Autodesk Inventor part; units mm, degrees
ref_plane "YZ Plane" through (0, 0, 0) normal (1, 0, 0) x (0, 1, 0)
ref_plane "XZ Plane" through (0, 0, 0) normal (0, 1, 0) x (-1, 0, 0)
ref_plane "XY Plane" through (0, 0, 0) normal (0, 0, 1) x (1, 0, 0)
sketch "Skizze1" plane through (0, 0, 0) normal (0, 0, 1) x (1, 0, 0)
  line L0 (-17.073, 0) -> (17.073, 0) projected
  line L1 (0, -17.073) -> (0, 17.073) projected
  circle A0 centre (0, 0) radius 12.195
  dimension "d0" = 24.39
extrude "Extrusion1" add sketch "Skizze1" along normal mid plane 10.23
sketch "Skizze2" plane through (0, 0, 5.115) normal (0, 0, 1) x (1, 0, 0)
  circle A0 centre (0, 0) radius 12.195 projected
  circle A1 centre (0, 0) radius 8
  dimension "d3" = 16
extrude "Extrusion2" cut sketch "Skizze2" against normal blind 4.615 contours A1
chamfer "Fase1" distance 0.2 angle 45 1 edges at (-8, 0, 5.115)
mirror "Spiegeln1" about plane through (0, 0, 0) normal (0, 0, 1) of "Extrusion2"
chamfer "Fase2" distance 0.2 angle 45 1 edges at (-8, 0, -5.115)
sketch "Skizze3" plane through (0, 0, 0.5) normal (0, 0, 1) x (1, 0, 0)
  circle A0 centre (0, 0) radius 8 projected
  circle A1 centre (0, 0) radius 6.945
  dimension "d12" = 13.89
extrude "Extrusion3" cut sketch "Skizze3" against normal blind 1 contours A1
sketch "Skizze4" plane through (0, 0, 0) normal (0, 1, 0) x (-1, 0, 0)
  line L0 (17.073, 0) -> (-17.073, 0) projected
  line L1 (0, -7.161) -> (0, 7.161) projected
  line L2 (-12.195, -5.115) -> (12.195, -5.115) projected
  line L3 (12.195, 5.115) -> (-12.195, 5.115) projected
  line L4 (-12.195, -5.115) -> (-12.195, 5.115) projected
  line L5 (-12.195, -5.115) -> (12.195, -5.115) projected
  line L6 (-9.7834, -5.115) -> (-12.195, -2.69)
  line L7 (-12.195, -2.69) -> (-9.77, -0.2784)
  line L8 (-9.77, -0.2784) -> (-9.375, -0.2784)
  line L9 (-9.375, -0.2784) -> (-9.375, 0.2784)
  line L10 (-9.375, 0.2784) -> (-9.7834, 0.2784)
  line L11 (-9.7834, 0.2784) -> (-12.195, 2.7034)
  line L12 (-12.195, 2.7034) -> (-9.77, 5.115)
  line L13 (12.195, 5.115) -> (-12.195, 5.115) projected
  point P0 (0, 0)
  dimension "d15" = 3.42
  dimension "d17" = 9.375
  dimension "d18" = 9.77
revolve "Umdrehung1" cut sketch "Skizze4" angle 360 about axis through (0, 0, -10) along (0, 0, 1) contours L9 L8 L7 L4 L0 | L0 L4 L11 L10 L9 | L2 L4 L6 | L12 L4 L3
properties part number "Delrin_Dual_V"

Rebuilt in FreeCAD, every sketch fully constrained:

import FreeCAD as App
import Part
import Sketcher
from FreeCAD import Vector
Q = App.Units.Quantity


def edges_at(feature, points):
    """Names of the edges that pass closest to the given points."""
    edges = feature.Shape.Edges
    near = lambda p: min(range(len(edges)), key=lambda i: edges[i].distToShape(Part.Vertex(*p))[0])
    return sorted({f"Edge{near(p) + 1}" for p in points})


def add_polygon(sketch, points):
    """Adds a closed chain of lines whose ends are joined by coincident constraints."""
    first, n = sketch.GeometryCount, len(points)
    for a, b in zip(points, points[1:] + points[:1]):
        sketch.addGeometry(Part.LineSegment(App.Vector(*a, 0), App.Vector(*b, 0)), False)
    for i in range(n):
        sketch.addConstraint(Sketcher.Constraint("Coincident", first + i, 2, first + (i + 1) % n, 1))

doc = App.newDocument("Part")
body = doc.addObject("PartDesign::Body", "Body")

# Sketch on XY plane
sketch1 = body.newObject("Sketcher::SketchObject", "Sketch")
sketch1.AttachmentSupport = (doc.getObject("XY_Plane"), [""])
sketch1.MapMode = "FlatFace"
sketch1.addGeometry(Part.Circle(Vector(0, 0, 0), Vector(0, 0, 1), 12), False)
sketch1.addConstraint([
    Sketcher.Constraint("Coincident", 0, 3, -1, 1),
    Sketcher.Constraint("Diameter", 0, Q("24.39 mm")),
])
pad1 = body.newObject("PartDesign::Pad", "Pad")
pad1.Profile = sketch1
pad1.Length = 10.23
pad1.Midplane = True

# Sketch on XY plane
sketch2 = body.newObject("Sketcher::SketchObject", "Sketch001")
sketch2.AttachmentSupport = (doc.getObject("XY_Plane"), [""])
sketch2.MapMode = "FlatFace"
sketch2.AttachmentOffset = App.Placement(Vector(0, 0, 5.115), App.Rotation())
sketch2.addGeometry(Part.Circle(Vector(0, 0, 0), Vector(0, 0, 1), 8), False)
sketch2.addConstraint([
    Sketcher.Constraint("Coincident", 0, 3, -1, 1),
    Sketcher.Constraint("Diameter", 0, Q("16 mm")),
])
pocket1 = body.newObject("PartDesign::Pocket", "Pocket")
pocket1.Profile = sketch2
pocket1.Length = 4.615
doc.recompute()

chamfer = body.newObject("PartDesign::Chamfer", "Chamfer")
chamfer.Base = (pocket1, edges_at(pocket1, [(-8, 0, 5.115)]))
chamfer.Size = 0.2
doc.recompute()

mirrored = body.newObject("PartDesign::Mirrored", "Mirrored")
mirrored.Originals = [pocket1]
mirrored.MirrorPlane = (doc.getObject("XY_Plane"), [""])
body.Tip = mirrored
doc.recompute()

chamfer2 = body.newObject("PartDesign::Chamfer", "Chamfer001")
chamfer2.Base = (mirrored, edges_at(mirrored, [(-8, 0, -5.115)]))
chamfer2.Size = 0.2

# Sketch on XY plane
sketch3 = body.newObject("Sketcher::SketchObject", "Sketch002")
sketch3.AttachmentSupport = (doc.getObject("XY_Plane"), [""])
sketch3.MapMode = "FlatFace"
sketch3.AttachmentOffset = App.Placement(Vector(0, 0, 0.5), App.Rotation())
sketch3.addGeometry(Part.Circle(Vector(0, 0, 0), Vector(0, 0, 1), 7), False)
sketch3.addConstraint([
    Sketcher.Constraint("Coincident", 0, 3, -1, 1),
    Sketcher.Constraint("Diameter", 0, Q("13.89 mm")),
])
pocket2 = body.newObject("PartDesign::Pocket", "Pocket001")
pocket2.Profile = sketch3
pocket2.Length = 1

# Sketch on XZ plane
sketch4 = body.newObject("Sketcher::SketchObject", "Sketch003")
sketch4.AttachmentSupport = (doc.getObject("XZ_Plane"), [""])
sketch4.MapMode = "FlatFace"
add_polygon(sketch4, [(9.38, -0.28), (9.38, 0.28), (9.78, 0.28), (12.2, 2.7), (12.2, -2.69), (9.77, -0.28)])  # lines 0-5
add_polygon(sketch4, [(12.2, -5.12), (9.78, -5.12), (12.2, -2.69)])  # lines 6-8
add_polygon(sketch4, [(12.2, 2.7), (9.77, 5.12), (12.2, 5.12)])  # lines 9-11
sketch4.addConstraint([
    Sketcher.Constraint("Vertical", 0),
    Sketcher.Constraint("Horizontal", 1),
    Sketcher.Constraint("Vertical", 3),
    Sketcher.Constraint("Horizontal", 5),
    Sketcher.Constraint("Horizontal", 6),
    Sketcher.Constraint("Vertical", 8),
    Sketcher.Constraint("Horizontal", 10),
    Sketcher.Constraint("Vertical", 11),
    Sketcher.Constraint("Coincident", 7, 2, 3, 2),
    Sketcher.Constraint("Coincident", 11, 2, 2, 2),
    Sketcher.Constraint("Perpendicular", 2, 4),
    Sketcher.Constraint("Perpendicular", 4, 7),
    Sketcher.Constraint("Perpendicular", 7, 9),
    Sketcher.Constraint("Vertical", 1, 2, 6, 2),
    Sketcher.Constraint("Vertical", 4, 2, 9, 2),
    Sketcher.Constraint("Equal", 10, 8),
    Sketcher.Constraint("Distance", 2, Q("3.42 mm")),
    Sketcher.Constraint("DistanceX", -1, 1, 4, 2, Q("9.77 mm")),
    Sketcher.Constraint("DistanceX", -1, 1, 0, 2, Q("9.375 mm")),
    Sketcher.Constraint("DistanceX", 10, 1, 10, 2, Q("2.425 mm")),
    Sketcher.Constraint("DistanceY", 3, 2, -1, 1, Q("2.69 mm")),
    Sketcher.Constraint("DistanceY", 0, 1, 0, 2, Q("0.5568 mm")),
])
groove = body.newObject("PartDesign::Groove", "Groove")
groove.Profile = sketch4
groove.ReferenceAxis = (sketch4, ["V_Axis"])
groove.Angle = 360

doc.recompute()
